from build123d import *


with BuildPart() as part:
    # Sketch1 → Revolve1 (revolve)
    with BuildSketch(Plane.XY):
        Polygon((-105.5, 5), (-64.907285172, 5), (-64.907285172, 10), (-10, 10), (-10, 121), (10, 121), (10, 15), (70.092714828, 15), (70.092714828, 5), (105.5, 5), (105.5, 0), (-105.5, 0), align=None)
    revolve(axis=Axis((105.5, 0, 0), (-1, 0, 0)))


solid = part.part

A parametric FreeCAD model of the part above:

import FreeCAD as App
import Part
import Sketcher

V = App.Vector
Q = App.Units.Quantity


def add_polygon(sketch, points):
    """Adds a closed chain of lines whose ends are joined by coincident constraints."""
    first, n = sketch.GeometryCount, len(points)
    for a, b in zip(points, points[1:] + points[:1]):
        sketch.addGeometry(Part.LineSegment(App.Vector(*a, 0), App.Vector(*b, 0)), False)
    for i in range(n):
        sketch.addConstraint(Sketcher.Constraint("Coincident", first + i, 2, first + (i + 1) % n, 1))

doc = App.newDocument("Part")
body = doc.addObject("PartDesign::Body", "Body")

# Sketch on XY plane
sketch1 = body.newObject("Sketcher::SketchObject", "Sketch")
sketch1.AttachmentSupport = (doc.getObject("XY_Plane"), [""])
sketch1.MapMode = "FlatFace"
add_polygon(sketch1, [(-64.907285, 5), (-105.5, 5), (-105.5, 0), (105.5, 0), (105.5, 5), (70.092715, 5), (70.092715, 15), (10, 15), (10, 121), (-10, 121), (-10, 10), (-64.907285, 10)])  # lines 0-11
sketch1.addConstraint([
    Sketcher.Constraint("Horizontal", 0),
    Sketcher.Constraint("Vertical", 1),
    Sketcher.Constraint("Horizontal", 2),
    Sketcher.Constraint("Vertical", 3),
    Sketcher.Constraint("Horizontal", 4),
    Sketcher.Constraint("Vertical", 5),
    Sketcher.Constraint("Horizontal", 6),
    Sketcher.Constraint("Vertical", 7),
    Sketcher.Constraint("Horizontal", 8),
    Sketcher.Constraint("Vertical", 9),
    Sketcher.Constraint("Horizontal", 10),
    Sketcher.Constraint("Vertical", 11),
    Sketcher.Constraint("Symmetric", 1, 2, 2, 2, -1, 1),
    Sketcher.Constraint("Horizontal", 0, 2, 3, 2),
    Sketcher.Constraint("Equal", 3, 11),
    Sketcher.Constraint("DistanceX", 2, 1, 2, 2, Q("211 mm")),
    Sketcher.Constraint("DistanceX", 8, 2, 8, 1, Q("20 mm")),
    Sketcher.Constraint("DistanceY", 1, 2, 1, 1, Q("5 mm")),
    Sketcher.Constraint("DistanceY", 5, 1, 5, 2, Q("10 mm")),
    Sketcher.Constraint("DistanceY", 7, 1, 7, 2, Q("106 mm")),
    Sketcher.Constraint("DistanceX", -1, 1, 6, 2, Q("10 mm")),
    Sketcher.Constraint("DistanceX", 0, 2, 0, 1, Q("40.592715 mm")),
    Sketcher.Constraint("DistanceX", 4, 2, 4, 1, Q("35.407285 mm")),
])
revolution = body.newObject("PartDesign::Revolution", "Revolution")
revolution.Profile = sketch1
revolution.ReferenceAxis = (sketch1, ["H_Axis"])
revolution.Angle = 360

doc.recompute()
